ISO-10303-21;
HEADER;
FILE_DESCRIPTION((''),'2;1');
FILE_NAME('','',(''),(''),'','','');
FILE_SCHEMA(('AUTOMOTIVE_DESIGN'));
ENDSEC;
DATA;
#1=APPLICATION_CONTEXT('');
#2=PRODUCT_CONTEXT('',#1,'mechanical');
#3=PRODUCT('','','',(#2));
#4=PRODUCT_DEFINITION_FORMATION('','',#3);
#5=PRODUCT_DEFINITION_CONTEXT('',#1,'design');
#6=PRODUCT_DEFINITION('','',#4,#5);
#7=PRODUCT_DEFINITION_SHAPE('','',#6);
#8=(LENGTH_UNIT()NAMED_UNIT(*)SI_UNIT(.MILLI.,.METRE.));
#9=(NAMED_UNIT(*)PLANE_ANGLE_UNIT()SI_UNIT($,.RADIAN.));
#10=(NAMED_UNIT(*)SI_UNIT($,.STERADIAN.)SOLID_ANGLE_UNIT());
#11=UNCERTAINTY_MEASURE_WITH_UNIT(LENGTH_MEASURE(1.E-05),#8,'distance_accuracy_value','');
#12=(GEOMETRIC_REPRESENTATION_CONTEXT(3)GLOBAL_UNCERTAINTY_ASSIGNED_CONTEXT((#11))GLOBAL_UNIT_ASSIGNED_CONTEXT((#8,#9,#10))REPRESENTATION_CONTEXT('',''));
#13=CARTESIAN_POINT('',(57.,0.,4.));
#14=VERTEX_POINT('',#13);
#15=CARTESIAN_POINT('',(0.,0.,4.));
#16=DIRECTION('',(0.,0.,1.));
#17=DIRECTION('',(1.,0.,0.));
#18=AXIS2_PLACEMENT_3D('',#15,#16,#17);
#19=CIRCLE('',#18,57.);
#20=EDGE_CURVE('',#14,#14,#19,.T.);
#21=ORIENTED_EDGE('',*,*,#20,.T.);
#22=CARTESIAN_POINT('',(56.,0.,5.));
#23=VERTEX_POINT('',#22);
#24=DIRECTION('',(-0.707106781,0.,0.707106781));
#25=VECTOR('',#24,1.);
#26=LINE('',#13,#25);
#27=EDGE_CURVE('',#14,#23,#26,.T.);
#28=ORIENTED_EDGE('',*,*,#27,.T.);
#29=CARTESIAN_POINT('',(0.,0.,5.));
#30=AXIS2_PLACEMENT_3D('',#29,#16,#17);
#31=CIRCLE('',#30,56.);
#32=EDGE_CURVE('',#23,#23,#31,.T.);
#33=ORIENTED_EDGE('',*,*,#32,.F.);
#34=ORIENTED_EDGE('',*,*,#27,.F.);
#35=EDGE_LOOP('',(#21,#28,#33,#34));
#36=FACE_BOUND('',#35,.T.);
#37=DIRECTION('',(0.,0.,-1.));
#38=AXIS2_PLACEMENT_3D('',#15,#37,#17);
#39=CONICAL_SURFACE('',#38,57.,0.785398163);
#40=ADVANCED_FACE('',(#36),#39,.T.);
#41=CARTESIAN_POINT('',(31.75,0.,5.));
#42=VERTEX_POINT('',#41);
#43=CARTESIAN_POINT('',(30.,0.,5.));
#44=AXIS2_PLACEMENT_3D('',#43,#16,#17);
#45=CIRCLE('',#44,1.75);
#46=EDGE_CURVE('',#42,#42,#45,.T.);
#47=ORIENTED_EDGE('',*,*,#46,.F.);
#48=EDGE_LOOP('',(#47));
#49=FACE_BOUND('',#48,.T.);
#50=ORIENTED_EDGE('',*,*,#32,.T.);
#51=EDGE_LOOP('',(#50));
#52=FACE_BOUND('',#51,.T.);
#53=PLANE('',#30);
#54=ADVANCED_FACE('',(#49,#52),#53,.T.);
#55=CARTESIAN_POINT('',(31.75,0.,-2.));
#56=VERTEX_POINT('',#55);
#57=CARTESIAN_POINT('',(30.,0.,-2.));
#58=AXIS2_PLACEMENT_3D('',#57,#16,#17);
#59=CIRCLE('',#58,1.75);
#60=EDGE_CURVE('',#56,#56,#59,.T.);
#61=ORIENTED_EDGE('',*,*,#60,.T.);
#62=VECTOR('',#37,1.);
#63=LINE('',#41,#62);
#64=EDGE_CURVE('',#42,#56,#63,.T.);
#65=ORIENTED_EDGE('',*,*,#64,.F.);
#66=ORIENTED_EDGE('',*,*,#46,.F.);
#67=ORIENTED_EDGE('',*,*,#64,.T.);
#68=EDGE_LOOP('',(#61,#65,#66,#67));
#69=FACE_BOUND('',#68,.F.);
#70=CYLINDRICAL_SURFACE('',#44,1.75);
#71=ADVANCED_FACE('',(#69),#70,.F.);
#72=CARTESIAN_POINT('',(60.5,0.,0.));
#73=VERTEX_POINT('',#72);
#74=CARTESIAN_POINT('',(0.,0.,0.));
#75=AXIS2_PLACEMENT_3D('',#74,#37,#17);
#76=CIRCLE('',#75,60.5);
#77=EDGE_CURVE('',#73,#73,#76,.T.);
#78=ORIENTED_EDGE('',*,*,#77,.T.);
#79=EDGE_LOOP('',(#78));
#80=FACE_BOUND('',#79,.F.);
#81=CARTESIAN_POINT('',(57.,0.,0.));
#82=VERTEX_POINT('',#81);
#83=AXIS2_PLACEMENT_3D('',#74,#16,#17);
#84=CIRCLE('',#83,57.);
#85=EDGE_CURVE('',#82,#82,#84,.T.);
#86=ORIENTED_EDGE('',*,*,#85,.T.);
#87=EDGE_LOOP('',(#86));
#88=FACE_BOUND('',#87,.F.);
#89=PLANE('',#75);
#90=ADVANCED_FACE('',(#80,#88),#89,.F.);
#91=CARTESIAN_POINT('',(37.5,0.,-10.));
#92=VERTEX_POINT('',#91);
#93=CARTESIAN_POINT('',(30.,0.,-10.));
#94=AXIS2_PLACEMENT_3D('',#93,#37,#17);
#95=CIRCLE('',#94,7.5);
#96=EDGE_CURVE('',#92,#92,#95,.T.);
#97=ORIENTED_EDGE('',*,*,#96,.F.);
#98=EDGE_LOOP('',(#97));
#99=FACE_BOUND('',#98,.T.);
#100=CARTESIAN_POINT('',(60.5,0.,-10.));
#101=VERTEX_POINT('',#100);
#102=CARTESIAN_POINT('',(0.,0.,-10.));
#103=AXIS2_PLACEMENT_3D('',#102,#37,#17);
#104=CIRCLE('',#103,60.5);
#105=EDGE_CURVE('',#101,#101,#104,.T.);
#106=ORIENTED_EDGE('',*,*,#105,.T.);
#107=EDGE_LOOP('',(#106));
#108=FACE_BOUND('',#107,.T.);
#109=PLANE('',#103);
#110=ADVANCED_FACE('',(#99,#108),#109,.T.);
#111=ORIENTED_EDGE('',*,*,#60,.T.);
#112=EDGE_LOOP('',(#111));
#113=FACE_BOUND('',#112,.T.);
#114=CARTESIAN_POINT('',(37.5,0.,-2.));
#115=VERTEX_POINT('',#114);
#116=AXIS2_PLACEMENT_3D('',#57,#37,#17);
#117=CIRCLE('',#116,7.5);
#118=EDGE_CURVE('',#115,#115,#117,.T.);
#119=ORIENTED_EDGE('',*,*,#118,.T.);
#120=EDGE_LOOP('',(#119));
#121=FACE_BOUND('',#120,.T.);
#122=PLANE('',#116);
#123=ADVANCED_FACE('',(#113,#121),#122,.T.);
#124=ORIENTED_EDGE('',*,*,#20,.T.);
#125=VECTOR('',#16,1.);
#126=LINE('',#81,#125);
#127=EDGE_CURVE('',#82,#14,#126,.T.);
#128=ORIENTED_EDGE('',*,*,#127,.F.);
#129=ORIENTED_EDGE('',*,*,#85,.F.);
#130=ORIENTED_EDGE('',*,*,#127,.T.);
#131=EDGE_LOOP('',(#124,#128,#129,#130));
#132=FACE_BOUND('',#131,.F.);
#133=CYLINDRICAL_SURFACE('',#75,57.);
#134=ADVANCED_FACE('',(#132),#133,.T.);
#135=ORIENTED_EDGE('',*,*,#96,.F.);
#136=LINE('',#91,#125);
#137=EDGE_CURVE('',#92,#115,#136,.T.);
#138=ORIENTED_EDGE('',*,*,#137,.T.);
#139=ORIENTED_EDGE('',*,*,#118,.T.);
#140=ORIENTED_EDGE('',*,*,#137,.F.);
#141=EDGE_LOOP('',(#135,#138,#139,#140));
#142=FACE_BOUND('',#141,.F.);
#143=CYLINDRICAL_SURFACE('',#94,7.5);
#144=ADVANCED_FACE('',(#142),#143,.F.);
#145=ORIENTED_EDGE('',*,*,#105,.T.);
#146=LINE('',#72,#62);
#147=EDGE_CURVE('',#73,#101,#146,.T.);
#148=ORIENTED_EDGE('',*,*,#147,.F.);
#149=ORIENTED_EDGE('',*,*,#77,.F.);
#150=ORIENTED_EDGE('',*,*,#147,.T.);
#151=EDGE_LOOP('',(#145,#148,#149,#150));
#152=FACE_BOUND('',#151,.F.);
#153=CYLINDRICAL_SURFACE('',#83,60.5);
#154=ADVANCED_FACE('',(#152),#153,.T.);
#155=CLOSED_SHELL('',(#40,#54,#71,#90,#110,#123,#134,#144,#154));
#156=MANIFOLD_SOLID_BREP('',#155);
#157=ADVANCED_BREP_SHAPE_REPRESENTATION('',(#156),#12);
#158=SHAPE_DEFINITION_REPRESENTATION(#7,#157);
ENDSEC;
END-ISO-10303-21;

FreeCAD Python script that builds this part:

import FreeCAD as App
import Part
import Sketcher

V = App.Vector
Q = App.Units.Quantity


def edges_at(feature, points):
    """Names of the edges that pass closest to the given points."""
    edges = feature.Shape.Edges
    near = lambda p: min(range(len(edges)), key=lambda i: edges[i].distToShape(Part.Vertex(*p))[0])
    return sorted({f"Edge{near(p) + 1}" for p in points})

doc = App.newDocument("Part")
body = doc.addObject("PartDesign::Body", "Body")

# Sketch on XY plane
sketch1 = body.newObject("Sketcher::SketchObject", "Sketch")
sketch1.AttachmentSupport = (doc.getObject("XY_Plane"), [""])
sketch1.MapMode = "FlatFace"
sketch1.addGeometry(Part.Circle(V(0, 0, 0), V(0, 0, 1), 57), False)
sketch1.addConstraint([
    Sketcher.Constraint("Coincident", 0, 3, -1, 1),
    Sketcher.Constraint("Diameter", 0, Q("114 mm")),
])
pad1 = body.newObject("PartDesign::Pad", "Pad")
pad1.Profile = sketch1
pad1.Length = 5

# Sketch on XY plane
sketch2 = body.newObject("Sketcher::SketchObject", "Sketch001")
sketch2.AttachmentSupport = (doc.getObject("XY_Plane"), [""])
sketch2.MapMode = "FlatFace"
sketch2.addGeometry(Part.Circle(V(0, 0, 0), V(0, 0, 1), 60), False)
sketch2.addConstraint([
    Sketcher.Constraint("Coincident", 0, 3, -1, 1),
    Sketcher.Constraint("Diameter", 0, Q("121 mm")),
])
pad2 = body.newObject("PartDesign::Pad", "Pad001")
pad2.Profile = sketch2
pad2.Length = 10
pad2.Reversed = True
doc.recompute()

chamfer = body.newObject("PartDesign::Chamfer", "Chamfer")
chamfer.Base = (pad2, edges_at(pad2, [(-57, 0, 5)]))
chamfer.Size = 1

# Sketch on XY plane
sketch3 = body.newObject("Sketcher::SketchObject", "Sketch002")
sketch3.AttachmentSupport = (doc.getObject("XY_Plane"), [""])
sketch3.MapMode = "FlatFace"
sketch3.AttachmentOffset = App.Placement(V(0, 0, 5), App.Rotation())
sketch3.addGeometry(Part.Circle(V(30, 0, 0), V(0, 0, 1), 1.8), False)
sketch3.addConstraint([
    Sketcher.Constraint("PointOnObject", 0, 3, -1),
    Sketcher.Constraint("Diameter", 0, Q("3.5 mm")),
    Sketcher.Constraint("DistanceX", -1, 1, 0, 3, Q("30 mm")),
])
pocket1 = body.newObject("PartDesign::Pocket", "Pocket")
pocket1.Profile = sketch3
pocket1.Type = "ThroughAll"

# Sketch on XY plane
sketch4 = body.newObject("Sketcher::SketchObject", "Sketch003")
sketch4.AttachmentSupport = (doc.getObject("XY_Plane"), [""])
sketch4.MapMode = "FlatFace"
sketch4.AttachmentOffset = App.Placement(V(0, 0, -10), App.Rotation())
sketch4.addGeometry(Part.Circle(V(30, 0, 0), V(0, 0, 1), 8), False)
sketch4.addConstraint([
    Sketcher.Constraint("PointOnObject", 0, 3, -1),
    Sketcher.Constraint("Diameter", 0, Q("15 mm")),
    Sketcher.Constraint("DistanceX", -1, 1, 0, 3, Q("30 mm")),
])
pocket2 = body.newObject("PartDesign::Pocket", "Pocket001")
pocket2.Profile = sketch4
pocket2.Length = 8
pocket2.Reversed = True

doc.recompute()
